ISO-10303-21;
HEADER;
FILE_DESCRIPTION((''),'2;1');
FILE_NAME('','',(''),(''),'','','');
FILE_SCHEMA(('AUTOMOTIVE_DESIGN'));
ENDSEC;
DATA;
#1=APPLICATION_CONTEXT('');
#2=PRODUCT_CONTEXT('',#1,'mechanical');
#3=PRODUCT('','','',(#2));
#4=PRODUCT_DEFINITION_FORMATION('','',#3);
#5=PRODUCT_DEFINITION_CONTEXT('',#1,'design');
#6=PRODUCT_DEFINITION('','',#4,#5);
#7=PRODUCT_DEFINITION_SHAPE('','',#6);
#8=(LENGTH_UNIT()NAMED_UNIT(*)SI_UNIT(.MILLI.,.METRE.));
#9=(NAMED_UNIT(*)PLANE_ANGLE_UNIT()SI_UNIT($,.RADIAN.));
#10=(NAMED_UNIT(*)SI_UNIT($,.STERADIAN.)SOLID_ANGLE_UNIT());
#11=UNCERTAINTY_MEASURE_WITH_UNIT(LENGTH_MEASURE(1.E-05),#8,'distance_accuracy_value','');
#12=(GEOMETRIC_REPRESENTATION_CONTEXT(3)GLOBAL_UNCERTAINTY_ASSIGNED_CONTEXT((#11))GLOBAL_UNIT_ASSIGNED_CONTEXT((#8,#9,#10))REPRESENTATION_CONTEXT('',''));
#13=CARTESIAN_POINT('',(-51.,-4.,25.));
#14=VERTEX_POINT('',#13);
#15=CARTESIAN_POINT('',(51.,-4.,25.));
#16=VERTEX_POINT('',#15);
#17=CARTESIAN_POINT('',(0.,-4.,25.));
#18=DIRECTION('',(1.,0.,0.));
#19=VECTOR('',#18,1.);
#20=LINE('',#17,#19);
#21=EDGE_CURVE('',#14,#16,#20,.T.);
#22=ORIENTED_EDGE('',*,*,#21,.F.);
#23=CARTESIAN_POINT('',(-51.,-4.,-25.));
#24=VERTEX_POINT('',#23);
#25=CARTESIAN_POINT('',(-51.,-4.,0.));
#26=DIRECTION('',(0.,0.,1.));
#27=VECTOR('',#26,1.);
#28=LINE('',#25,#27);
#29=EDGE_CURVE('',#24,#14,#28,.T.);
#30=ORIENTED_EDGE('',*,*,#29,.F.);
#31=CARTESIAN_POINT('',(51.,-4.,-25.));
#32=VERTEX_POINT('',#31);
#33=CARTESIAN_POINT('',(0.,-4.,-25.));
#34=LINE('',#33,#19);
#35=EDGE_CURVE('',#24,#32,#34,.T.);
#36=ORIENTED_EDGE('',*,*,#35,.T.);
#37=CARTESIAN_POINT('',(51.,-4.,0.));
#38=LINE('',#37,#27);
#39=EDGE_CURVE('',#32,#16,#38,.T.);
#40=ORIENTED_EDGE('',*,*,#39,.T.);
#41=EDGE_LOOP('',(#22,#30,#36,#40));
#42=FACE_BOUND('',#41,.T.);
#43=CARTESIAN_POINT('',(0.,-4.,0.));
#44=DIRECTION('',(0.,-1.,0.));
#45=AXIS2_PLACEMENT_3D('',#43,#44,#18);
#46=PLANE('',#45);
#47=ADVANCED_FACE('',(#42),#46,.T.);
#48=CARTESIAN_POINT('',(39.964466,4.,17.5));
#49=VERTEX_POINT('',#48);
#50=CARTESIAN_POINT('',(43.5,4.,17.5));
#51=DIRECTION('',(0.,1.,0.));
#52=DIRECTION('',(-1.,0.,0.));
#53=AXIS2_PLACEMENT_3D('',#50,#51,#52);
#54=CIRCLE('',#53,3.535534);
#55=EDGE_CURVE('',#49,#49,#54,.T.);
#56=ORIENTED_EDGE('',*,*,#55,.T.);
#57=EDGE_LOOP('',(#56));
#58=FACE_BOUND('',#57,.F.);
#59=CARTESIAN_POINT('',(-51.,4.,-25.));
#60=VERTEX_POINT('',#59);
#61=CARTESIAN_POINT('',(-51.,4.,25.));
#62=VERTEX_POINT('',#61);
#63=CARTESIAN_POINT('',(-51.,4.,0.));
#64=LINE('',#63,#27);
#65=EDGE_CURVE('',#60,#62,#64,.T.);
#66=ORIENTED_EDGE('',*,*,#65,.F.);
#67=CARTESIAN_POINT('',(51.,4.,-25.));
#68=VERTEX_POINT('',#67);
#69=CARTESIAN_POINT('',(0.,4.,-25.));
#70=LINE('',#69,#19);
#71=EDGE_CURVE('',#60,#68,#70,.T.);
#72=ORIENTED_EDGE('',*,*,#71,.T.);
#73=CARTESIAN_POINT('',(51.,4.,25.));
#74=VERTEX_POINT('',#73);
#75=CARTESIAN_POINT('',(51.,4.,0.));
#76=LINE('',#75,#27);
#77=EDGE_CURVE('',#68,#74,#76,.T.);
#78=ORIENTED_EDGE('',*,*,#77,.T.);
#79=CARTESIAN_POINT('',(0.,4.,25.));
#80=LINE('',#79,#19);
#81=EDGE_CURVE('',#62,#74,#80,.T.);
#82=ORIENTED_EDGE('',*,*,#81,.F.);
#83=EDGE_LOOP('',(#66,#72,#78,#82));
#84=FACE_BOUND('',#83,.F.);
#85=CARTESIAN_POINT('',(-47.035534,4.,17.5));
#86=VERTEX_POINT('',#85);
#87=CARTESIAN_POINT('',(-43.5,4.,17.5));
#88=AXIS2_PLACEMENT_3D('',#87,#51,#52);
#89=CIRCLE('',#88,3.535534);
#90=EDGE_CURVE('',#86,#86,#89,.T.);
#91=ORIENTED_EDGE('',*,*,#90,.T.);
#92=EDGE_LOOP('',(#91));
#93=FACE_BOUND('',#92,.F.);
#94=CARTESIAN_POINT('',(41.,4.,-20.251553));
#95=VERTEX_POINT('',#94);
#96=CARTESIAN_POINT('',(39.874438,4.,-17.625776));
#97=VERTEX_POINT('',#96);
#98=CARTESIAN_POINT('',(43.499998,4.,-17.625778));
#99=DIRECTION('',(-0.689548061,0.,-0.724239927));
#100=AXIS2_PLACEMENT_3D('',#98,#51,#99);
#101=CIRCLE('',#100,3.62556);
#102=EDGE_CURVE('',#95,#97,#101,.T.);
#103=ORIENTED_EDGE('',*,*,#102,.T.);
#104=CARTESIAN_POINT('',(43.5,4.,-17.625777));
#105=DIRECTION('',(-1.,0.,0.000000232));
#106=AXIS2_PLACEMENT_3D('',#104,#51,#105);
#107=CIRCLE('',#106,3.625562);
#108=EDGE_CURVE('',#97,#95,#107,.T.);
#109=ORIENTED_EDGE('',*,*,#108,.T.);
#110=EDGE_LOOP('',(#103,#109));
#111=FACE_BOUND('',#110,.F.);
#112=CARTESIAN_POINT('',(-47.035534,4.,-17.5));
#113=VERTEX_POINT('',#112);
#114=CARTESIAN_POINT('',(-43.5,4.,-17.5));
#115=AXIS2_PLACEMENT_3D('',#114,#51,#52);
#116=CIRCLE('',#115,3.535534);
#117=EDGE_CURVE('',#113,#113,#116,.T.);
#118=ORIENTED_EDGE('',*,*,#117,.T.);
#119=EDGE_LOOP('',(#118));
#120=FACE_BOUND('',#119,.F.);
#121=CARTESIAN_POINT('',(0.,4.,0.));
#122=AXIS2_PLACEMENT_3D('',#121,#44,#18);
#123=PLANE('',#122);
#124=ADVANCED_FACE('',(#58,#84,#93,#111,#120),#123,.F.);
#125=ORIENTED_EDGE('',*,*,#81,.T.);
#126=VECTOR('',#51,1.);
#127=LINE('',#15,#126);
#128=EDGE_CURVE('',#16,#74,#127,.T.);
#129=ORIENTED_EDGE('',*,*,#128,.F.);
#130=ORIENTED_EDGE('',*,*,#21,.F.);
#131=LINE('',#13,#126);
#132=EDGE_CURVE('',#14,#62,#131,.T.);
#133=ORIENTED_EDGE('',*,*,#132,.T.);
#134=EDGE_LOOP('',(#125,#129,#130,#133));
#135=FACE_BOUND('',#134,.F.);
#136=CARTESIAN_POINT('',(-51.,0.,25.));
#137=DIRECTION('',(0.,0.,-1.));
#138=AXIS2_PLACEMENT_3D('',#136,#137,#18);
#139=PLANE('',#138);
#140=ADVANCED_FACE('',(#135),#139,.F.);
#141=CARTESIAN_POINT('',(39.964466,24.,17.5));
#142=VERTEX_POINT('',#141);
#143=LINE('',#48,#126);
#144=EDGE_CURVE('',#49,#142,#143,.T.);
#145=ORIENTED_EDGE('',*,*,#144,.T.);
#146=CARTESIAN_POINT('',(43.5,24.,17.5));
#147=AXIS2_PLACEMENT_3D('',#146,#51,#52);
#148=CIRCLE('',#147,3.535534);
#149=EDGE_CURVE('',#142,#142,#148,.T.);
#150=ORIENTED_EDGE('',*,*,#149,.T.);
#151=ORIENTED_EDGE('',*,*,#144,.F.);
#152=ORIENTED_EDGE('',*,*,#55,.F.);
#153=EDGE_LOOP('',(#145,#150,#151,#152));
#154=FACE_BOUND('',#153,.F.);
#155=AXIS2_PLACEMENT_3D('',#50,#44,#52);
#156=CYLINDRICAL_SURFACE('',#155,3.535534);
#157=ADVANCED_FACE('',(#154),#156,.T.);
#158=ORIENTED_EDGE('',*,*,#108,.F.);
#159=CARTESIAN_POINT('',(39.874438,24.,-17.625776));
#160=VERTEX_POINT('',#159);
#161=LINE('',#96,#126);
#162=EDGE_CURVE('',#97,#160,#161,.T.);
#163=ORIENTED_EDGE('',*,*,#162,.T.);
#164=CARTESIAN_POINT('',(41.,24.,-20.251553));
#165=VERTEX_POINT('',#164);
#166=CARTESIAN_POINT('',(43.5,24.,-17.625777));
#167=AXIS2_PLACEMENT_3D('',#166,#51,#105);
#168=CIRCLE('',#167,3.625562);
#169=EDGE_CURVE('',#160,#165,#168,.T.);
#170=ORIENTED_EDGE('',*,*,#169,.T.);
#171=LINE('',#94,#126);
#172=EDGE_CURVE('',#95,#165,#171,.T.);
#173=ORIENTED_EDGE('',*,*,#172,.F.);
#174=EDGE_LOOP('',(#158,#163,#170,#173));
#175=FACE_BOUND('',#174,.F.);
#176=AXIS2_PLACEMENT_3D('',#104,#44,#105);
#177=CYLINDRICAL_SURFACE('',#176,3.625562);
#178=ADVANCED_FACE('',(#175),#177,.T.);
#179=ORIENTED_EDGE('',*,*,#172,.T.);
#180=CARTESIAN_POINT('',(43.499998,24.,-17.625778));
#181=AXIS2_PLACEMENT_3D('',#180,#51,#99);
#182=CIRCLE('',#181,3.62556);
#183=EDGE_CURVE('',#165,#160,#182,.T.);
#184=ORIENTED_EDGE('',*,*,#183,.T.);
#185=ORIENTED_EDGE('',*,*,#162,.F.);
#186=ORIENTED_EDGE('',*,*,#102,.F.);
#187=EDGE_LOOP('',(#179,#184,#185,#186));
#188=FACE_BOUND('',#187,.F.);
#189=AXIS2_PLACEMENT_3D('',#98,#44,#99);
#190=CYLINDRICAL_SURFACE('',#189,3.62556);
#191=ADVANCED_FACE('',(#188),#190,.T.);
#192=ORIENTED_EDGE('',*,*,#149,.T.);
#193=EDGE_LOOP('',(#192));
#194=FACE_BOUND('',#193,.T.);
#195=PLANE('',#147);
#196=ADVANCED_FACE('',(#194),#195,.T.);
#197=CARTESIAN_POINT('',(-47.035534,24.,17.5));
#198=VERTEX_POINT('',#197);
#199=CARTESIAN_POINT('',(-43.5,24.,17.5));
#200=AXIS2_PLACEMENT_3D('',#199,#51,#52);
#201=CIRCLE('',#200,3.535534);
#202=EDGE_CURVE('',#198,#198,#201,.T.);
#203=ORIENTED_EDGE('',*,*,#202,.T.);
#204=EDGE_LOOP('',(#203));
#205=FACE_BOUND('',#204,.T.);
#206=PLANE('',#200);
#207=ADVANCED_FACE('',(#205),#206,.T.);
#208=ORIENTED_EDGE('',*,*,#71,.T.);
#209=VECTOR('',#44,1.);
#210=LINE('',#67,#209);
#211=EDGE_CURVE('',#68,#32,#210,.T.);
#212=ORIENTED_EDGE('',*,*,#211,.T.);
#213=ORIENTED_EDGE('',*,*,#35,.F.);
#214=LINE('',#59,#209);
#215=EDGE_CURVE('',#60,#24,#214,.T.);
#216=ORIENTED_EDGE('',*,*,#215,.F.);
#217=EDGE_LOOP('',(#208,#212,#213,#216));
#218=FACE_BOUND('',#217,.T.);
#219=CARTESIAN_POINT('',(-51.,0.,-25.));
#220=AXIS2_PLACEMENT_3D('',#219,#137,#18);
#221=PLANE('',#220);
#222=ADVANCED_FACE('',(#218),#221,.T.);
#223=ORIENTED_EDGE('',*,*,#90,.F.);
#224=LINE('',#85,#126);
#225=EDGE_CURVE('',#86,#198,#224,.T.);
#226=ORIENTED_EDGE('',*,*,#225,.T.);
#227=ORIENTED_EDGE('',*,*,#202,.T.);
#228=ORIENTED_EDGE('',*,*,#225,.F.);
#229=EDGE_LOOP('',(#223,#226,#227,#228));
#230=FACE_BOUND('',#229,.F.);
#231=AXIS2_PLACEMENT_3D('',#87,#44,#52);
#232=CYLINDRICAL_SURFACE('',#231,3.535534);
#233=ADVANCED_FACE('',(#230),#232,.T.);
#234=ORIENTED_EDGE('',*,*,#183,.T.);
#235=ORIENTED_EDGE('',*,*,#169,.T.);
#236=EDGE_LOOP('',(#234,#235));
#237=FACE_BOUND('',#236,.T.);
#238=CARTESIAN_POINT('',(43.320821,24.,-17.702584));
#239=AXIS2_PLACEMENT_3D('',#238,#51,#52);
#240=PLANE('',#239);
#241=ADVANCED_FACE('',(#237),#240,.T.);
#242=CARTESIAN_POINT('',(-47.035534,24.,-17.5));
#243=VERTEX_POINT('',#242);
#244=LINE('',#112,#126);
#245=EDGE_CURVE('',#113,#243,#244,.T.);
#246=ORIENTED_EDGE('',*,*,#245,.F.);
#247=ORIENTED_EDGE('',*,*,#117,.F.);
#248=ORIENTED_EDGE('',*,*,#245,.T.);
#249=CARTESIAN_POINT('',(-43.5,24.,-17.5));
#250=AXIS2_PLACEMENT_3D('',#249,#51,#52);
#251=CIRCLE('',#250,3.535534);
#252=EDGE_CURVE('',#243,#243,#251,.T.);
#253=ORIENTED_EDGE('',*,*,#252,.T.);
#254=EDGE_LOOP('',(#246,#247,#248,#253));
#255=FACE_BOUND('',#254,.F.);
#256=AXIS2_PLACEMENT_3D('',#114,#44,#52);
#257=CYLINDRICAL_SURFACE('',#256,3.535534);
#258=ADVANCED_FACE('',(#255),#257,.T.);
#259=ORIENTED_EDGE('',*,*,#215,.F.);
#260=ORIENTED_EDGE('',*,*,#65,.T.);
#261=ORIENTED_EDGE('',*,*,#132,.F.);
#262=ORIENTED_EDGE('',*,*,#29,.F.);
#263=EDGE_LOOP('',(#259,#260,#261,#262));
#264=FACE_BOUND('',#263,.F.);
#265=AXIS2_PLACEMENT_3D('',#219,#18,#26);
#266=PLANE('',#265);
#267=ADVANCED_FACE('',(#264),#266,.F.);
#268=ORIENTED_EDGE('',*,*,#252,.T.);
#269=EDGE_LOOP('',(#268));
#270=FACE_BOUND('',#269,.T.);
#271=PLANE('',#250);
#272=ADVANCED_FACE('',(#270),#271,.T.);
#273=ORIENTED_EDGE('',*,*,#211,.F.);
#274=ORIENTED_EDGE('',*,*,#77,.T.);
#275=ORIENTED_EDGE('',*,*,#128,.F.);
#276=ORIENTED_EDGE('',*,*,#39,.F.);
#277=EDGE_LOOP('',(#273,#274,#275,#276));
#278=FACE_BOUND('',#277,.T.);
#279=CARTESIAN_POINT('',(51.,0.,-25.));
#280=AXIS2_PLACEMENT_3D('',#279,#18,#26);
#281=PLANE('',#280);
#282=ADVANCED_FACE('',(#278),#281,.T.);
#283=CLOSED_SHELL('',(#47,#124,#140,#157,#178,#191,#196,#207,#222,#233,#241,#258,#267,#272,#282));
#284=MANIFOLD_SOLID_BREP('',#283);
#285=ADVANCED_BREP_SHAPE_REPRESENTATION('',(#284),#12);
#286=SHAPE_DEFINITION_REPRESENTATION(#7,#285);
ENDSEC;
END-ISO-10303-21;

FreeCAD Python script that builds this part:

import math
import FreeCAD as App
import Part
import Sketcher

V = App.Vector
Q = App.Units.Quantity


def add_polygon(sketch, points):
    """Adds a closed chain of lines whose ends are joined by coincident constraints."""
    first, n = sketch.GeometryCount, len(points)
    for a, b in zip(points, points[1:] + points[:1]):
        sketch.addGeometry(Part.LineSegment(App.Vector(*a, 0), App.Vector(*b, 0)), False)
    for i in range(n):
        sketch.addConstraint(Sketcher.Constraint("Coincident", first + i, 2, first + (i + 1) % n, 1))

doc = App.newDocument("Part")
params = doc.addObject("Spreadsheet::Sheet", "Params")
for row, (alias, value) in enumerate([
    ("sketch1_width", "102 mm"),
    ("sketch1_height", "50 mm"),
    ("pad1_length", "8 mm"),
    ("pad2_length", "20 mm"),
], start=1):
    params.set(f"A{row}", alias)
    params.set(f"B{row}", "=" + value)
    params.setAlias(f"B{row}", alias)

body = doc.addObject("PartDesign::Body", "Body")

# Sketch on XZ plane
sketch1 = doc.addObject("Sketcher::SketchObject", "Sketch")
body.addObject(sketch1)
sketch1.AttachmentSupport = (doc.XZ_Plane, [""])
sketch1.MapMode = "FlatFace"
add_polygon(sketch1, [(-51, 25), (-51, -25), (51, -25), (51, 25)])  # lines 0-3
sketch1.addConstraint([
    Sketcher.Constraint("Vertical", 0),
    Sketcher.Constraint("Horizontal", 1),
    Sketcher.Constraint("Vertical", 2),
    Sketcher.Constraint("Horizontal", 3),
    Sketcher.Constraint("Symmetric", 0, 2, 2, 2, -1, 1),
    Sketcher.Constraint("DistanceX", 1, 1, 1, 2, Q("102 mm")),
    Sketcher.Constraint("DistanceY", 0, 2, 0, 1, Q("50 mm")),
])
sketch1.setExpression("Constraints[9]", "Params.sketch1_width")
sketch1.setExpression("Constraints[10]", "Params.sketch1_height")
pad1 = doc.addObject("PartDesign::Pad", "Pad")
body.addObject(pad1)
pad1.Profile = sketch1
pad1.setExpression("Length", "Params.pad1_length")
pad1.Midplane = True

# Sketch on XZ plane
sketch2 = doc.addObject("Sketcher::SketchObject", "Sketch001")
body.addObject(sketch2)
sketch2.AttachmentSupport = (doc.XZ_Plane, [""])
sketch2.MapMode = "FlatFace"
sketch2.AttachmentOffset = App.Placement(V(0, 0, -4), App.Rotation())
sketch2.addGeometry([
    Part.ArcOfCircle(Part.Circle(V(43.5, -17.6, 0), V(0, 0, 1), 3.6), math.radians(180), math.radians(226)),  # 0
    Part.ArcOfCircle(Part.Circle(V(43.5, -17.6, 0), V(0, 0, 1), 3.6), math.radians(-134), math.radians(180)),  # 1
    Part.Circle(V(43.5, 17.5, 0), V(0, 0, 1), 3.5),  # 2
    Part.Circle(V(-43.5, -17.5, 0), V(0, 0, 1), 3.5),  # 3
    Part.Circle(V(-43.5, 17.5, 0), V(0, 0, 1), 3.5),  # 4
], False)
sketch2.addConstraint([
    Sketcher.Constraint("Tangent", 0, 1, 1, 2),
    Sketcher.Constraint("Coincident", 1, 1, 0, 2),
    Sketcher.Constraint("Equal", 2, 3),
    Sketcher.Constraint("Equal", 3, 4),
    Sketcher.Constraint("Symmetric", 2, 3, 3, 3, -1, 1),
    Sketcher.Constraint("Symmetric", 2, 3, 4, 3, -2),
    Sketcher.Constraint("Horizontal", 1, 3, 0, 1),
    Sketcher.Constraint("Vertical", 1, 3, 2, 3),
    Sketcher.Constraint("DistanceX", -1, 1, 1, 1, Q("41 mm")),
    Sketcher.Constraint("DistanceX", 3, 3, 1, 3, Q("87 mm")),
    Sketcher.Constraint("DistanceY", 3, 3, 2, 3, Q("35 mm")),
    Sketcher.Constraint("Diameter", 2, Q("7.071068 mm")),
    Sketcher.Constraint("Radius", 0, Q("3.62556 mm")),
    Sketcher.Constraint("DistanceY", 0, 3, -1, 1, Q("17.625778 mm")),
])
pad2 = doc.addObject("PartDesign::Pad", "Pad001")
body.addObject(pad2)
pad2.Profile = sketch2
pad2.setExpression("Length", "Params.pad2_length")
pad2.Reversed = True

doc.recompute()
